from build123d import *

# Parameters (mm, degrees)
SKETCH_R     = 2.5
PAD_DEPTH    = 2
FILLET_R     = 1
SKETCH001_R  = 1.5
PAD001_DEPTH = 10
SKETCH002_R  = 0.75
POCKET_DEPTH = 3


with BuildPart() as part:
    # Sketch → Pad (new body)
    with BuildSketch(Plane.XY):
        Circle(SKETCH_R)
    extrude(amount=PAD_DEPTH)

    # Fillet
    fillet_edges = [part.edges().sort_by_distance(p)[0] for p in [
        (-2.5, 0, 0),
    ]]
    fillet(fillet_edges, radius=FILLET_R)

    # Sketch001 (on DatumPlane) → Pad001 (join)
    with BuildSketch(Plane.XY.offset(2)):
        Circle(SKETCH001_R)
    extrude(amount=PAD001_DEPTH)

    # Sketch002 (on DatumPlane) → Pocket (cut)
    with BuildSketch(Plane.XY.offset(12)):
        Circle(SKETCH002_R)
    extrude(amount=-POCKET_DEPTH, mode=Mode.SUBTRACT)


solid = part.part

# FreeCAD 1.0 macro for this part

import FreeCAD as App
import Part
import Sketcher
from FreeCAD import Vector
Q = App.Units.Quantity


def edges_at(feature, points):
    """Names of the edges that pass closest to the given points."""
    edges = feature.Shape.Edges
    near = lambda p: min(range(len(edges)), key=lambda i: edges[i].distToShape(Part.Vertex(*p))[0])
    return sorted({f"Edge{near(p) + 1}" for p in points})

doc = App.newDocument("Part")
body = doc.addObject("PartDesign::Body", "Body")

# Sketch on XY plane
sketch1 = body.newObject("Sketcher::SketchObject", "Sketch")
sketch1.AttachmentSupport = (doc.getObject("XY_Plane"), [""])
sketch1.MapMode = "FlatFace"
sketch1.addGeometry(Part.Circle(Vector(0, 0, 0), Vector(0, 0, 1), 2.5), False)
sketch1.addConstraint([
    Sketcher.Constraint("Coincident", 0, 3, -1, 1),
    Sketcher.Constraint("Diameter", 0, Q("5 mm")),
])
pad1 = body.newObject("PartDesign::Pad", "Pad")
pad1.Profile = sketch1
pad1.Length = 2
doc.recompute()

fillet = body.newObject("PartDesign::Fillet", "Fillet")
fillet.Base = (pad1, edges_at(pad1, [(-2.5, 0, 0)]))
fillet.Radius = 1

# Sketch on XY plane
sketch2 = body.newObject("Sketcher::SketchObject", "Sketch001")
sketch2.AttachmentSupport = (doc.getObject("XY_Plane"), [""])
sketch2.MapMode = "FlatFace"
sketch2.AttachmentOffset = App.Placement(Vector(0, 0, 2), App.Rotation())
sketch2.addGeometry(Part.Circle(Vector(0, 0, 0), Vector(0, 0, 1), 1.5), False)
sketch2.addConstraint([
    Sketcher.Constraint("Coincident", 0, 3, -1, 1),
    Sketcher.Constraint("Diameter", 0, Q("3 mm")),
])
pad2 = body.newObject("PartDesign::Pad", "Pad001")
pad2.Profile = sketch2
pad2.Length = 10

# Sketch on XY plane
sketch3 = body.newObject("Sketcher::SketchObject", "Sketch002")
sketch3.AttachmentSupport = (doc.getObject("XY_Plane"), [""])
sketch3.MapMode = "FlatFace"
sketch3.AttachmentOffset = App.Placement(Vector(0, 0, 12), App.Rotation())
sketch3.addGeometry(Part.Circle(Vector(0, 0, 0), Vector(0, 0, 1), 0.8), False)
sketch3.addConstraint([
    Sketcher.Constraint("Coincident", 0, 3, -1, 1),
    Sketcher.Constraint("Diameter", 0, Q("1.5 mm")),
])
pocket1 = body.newObject("PartDesign::Pocket", "Pocket")
pocket1.Profile = sketch3
pocket1.Length = 3

doc.recompute()
